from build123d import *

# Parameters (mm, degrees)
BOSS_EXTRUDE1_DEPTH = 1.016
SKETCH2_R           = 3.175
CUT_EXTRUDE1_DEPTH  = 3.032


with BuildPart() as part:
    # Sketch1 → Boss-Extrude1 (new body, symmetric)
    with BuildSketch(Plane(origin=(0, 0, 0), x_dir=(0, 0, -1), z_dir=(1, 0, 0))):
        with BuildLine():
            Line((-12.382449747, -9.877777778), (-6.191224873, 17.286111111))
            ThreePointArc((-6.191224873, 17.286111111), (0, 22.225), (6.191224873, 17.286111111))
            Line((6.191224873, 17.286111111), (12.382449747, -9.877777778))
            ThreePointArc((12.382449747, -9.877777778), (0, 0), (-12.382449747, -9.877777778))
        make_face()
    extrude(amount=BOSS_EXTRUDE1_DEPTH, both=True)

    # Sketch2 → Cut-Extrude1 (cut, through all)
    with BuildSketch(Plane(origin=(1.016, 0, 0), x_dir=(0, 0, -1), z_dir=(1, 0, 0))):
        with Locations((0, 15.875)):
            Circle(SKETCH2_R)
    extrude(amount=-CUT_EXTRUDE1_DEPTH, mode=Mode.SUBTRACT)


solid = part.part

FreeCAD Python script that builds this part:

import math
import FreeCAD as App
import Part
import Sketcher
Q = App.Units.Quantity

doc = App.newDocument("Part")
body = doc.addObject("PartDesign::Body", "Body")

# Sketch on YZ plane
sketch1 = body.newObject("Sketcher::SketchObject", "Sketch")
sketch1.AttachmentSupport = (doc.getObject("YZ_Plane"), [""])
sketch1.MapMode = "FlatFace"
sketch1.addGeometry(Part.LineSegment(App.Vector(17, 6, 0), App.Vector(-10, 12, 0)), False)
sketch1.addGeometry(Part.ArcOfCircle(Part.Circle(App.Vector(-13, 0, 0), App.Vector(0, 0, 1), 13), math.radians(-77), math.radians(77)), False)
sketch1.addGeometry(Part.LineSegment(App.Vector(-10, -12, 0), App.Vector(17, -6, 0)), False)
sketch1.addGeometry(Part.ArcOfCircle(Part.Circle(App.Vector(16, 0, 0), App.Vector(0, 0, 1), 6), math.radians(-77), math.radians(77)), False)
sketch1.addConstraint(Sketcher.Constraint("Tangent", 0, 2, 1, 2))
sketch1.addConstraint(Sketcher.Constraint("Tangent", 1, 1, 2, 1))
sketch1.addConstraint(Sketcher.Constraint("Tangent", 2, 2, 3, 1))
sketch1.addConstraint(Sketcher.Constraint("Tangent", 3, 2, 0, 1))
sketch1.addConstraint(Sketcher.Constraint("Symmetric", 0, 2, 1, 1, -1))
sketch1.addConstraint(Sketcher.Constraint("Radius", 1, Q("0.5 in")))
sketch1.addConstraint(Sketcher.Constraint("Radius", 3, Q("0.25 in")))
sketch1.addConstraint(Sketcher.Constraint("DistanceX", 1, 3, -1, 1, Q("0.5 in")))
sketch1.addConstraint(Sketcher.Constraint("DistanceX", -1, 1, 3, 3, Q("0.625 in")))
pad1 = body.newObject("PartDesign::Pad", "Pad")
pad1.Profile = sketch1
pad1.Length = Q("0.08 in")
pad1.Midplane = True

# Sketch on YZ plane
sketch2 = body.newObject("Sketcher::SketchObject", "Sketch001")
sketch2.AttachmentSupport = (doc.getObject("YZ_Plane"), [""])
sketch2.MapMode = "FlatFace"
sketch2.AttachmentOffset = App.Placement(App.Vector(0, 0, 0.04 * 25.4), App.Rotation())
sketch2.addGeometry(Part.Circle(App.Vector(15.9, 0, 0), App.Vector(0, 0, 1), 3.2), False)
sketch2.addConstraint(Sketcher.Constraint("PointOnObject", 0, 3, -1))
sketch2.addConstraint(Sketcher.Constraint("Diameter", 0, Q("0.25 in")))
sketch2.addConstraint(Sketcher.Constraint("DistanceX", -1, 1, 0, 3, Q("0.625 in")))
pocket1 = body.newObject("PartDesign::Pocket", "Pocket")
pocket1.Profile = sketch2
pocket1.Type = "ThroughAll"

doc.recompute()
